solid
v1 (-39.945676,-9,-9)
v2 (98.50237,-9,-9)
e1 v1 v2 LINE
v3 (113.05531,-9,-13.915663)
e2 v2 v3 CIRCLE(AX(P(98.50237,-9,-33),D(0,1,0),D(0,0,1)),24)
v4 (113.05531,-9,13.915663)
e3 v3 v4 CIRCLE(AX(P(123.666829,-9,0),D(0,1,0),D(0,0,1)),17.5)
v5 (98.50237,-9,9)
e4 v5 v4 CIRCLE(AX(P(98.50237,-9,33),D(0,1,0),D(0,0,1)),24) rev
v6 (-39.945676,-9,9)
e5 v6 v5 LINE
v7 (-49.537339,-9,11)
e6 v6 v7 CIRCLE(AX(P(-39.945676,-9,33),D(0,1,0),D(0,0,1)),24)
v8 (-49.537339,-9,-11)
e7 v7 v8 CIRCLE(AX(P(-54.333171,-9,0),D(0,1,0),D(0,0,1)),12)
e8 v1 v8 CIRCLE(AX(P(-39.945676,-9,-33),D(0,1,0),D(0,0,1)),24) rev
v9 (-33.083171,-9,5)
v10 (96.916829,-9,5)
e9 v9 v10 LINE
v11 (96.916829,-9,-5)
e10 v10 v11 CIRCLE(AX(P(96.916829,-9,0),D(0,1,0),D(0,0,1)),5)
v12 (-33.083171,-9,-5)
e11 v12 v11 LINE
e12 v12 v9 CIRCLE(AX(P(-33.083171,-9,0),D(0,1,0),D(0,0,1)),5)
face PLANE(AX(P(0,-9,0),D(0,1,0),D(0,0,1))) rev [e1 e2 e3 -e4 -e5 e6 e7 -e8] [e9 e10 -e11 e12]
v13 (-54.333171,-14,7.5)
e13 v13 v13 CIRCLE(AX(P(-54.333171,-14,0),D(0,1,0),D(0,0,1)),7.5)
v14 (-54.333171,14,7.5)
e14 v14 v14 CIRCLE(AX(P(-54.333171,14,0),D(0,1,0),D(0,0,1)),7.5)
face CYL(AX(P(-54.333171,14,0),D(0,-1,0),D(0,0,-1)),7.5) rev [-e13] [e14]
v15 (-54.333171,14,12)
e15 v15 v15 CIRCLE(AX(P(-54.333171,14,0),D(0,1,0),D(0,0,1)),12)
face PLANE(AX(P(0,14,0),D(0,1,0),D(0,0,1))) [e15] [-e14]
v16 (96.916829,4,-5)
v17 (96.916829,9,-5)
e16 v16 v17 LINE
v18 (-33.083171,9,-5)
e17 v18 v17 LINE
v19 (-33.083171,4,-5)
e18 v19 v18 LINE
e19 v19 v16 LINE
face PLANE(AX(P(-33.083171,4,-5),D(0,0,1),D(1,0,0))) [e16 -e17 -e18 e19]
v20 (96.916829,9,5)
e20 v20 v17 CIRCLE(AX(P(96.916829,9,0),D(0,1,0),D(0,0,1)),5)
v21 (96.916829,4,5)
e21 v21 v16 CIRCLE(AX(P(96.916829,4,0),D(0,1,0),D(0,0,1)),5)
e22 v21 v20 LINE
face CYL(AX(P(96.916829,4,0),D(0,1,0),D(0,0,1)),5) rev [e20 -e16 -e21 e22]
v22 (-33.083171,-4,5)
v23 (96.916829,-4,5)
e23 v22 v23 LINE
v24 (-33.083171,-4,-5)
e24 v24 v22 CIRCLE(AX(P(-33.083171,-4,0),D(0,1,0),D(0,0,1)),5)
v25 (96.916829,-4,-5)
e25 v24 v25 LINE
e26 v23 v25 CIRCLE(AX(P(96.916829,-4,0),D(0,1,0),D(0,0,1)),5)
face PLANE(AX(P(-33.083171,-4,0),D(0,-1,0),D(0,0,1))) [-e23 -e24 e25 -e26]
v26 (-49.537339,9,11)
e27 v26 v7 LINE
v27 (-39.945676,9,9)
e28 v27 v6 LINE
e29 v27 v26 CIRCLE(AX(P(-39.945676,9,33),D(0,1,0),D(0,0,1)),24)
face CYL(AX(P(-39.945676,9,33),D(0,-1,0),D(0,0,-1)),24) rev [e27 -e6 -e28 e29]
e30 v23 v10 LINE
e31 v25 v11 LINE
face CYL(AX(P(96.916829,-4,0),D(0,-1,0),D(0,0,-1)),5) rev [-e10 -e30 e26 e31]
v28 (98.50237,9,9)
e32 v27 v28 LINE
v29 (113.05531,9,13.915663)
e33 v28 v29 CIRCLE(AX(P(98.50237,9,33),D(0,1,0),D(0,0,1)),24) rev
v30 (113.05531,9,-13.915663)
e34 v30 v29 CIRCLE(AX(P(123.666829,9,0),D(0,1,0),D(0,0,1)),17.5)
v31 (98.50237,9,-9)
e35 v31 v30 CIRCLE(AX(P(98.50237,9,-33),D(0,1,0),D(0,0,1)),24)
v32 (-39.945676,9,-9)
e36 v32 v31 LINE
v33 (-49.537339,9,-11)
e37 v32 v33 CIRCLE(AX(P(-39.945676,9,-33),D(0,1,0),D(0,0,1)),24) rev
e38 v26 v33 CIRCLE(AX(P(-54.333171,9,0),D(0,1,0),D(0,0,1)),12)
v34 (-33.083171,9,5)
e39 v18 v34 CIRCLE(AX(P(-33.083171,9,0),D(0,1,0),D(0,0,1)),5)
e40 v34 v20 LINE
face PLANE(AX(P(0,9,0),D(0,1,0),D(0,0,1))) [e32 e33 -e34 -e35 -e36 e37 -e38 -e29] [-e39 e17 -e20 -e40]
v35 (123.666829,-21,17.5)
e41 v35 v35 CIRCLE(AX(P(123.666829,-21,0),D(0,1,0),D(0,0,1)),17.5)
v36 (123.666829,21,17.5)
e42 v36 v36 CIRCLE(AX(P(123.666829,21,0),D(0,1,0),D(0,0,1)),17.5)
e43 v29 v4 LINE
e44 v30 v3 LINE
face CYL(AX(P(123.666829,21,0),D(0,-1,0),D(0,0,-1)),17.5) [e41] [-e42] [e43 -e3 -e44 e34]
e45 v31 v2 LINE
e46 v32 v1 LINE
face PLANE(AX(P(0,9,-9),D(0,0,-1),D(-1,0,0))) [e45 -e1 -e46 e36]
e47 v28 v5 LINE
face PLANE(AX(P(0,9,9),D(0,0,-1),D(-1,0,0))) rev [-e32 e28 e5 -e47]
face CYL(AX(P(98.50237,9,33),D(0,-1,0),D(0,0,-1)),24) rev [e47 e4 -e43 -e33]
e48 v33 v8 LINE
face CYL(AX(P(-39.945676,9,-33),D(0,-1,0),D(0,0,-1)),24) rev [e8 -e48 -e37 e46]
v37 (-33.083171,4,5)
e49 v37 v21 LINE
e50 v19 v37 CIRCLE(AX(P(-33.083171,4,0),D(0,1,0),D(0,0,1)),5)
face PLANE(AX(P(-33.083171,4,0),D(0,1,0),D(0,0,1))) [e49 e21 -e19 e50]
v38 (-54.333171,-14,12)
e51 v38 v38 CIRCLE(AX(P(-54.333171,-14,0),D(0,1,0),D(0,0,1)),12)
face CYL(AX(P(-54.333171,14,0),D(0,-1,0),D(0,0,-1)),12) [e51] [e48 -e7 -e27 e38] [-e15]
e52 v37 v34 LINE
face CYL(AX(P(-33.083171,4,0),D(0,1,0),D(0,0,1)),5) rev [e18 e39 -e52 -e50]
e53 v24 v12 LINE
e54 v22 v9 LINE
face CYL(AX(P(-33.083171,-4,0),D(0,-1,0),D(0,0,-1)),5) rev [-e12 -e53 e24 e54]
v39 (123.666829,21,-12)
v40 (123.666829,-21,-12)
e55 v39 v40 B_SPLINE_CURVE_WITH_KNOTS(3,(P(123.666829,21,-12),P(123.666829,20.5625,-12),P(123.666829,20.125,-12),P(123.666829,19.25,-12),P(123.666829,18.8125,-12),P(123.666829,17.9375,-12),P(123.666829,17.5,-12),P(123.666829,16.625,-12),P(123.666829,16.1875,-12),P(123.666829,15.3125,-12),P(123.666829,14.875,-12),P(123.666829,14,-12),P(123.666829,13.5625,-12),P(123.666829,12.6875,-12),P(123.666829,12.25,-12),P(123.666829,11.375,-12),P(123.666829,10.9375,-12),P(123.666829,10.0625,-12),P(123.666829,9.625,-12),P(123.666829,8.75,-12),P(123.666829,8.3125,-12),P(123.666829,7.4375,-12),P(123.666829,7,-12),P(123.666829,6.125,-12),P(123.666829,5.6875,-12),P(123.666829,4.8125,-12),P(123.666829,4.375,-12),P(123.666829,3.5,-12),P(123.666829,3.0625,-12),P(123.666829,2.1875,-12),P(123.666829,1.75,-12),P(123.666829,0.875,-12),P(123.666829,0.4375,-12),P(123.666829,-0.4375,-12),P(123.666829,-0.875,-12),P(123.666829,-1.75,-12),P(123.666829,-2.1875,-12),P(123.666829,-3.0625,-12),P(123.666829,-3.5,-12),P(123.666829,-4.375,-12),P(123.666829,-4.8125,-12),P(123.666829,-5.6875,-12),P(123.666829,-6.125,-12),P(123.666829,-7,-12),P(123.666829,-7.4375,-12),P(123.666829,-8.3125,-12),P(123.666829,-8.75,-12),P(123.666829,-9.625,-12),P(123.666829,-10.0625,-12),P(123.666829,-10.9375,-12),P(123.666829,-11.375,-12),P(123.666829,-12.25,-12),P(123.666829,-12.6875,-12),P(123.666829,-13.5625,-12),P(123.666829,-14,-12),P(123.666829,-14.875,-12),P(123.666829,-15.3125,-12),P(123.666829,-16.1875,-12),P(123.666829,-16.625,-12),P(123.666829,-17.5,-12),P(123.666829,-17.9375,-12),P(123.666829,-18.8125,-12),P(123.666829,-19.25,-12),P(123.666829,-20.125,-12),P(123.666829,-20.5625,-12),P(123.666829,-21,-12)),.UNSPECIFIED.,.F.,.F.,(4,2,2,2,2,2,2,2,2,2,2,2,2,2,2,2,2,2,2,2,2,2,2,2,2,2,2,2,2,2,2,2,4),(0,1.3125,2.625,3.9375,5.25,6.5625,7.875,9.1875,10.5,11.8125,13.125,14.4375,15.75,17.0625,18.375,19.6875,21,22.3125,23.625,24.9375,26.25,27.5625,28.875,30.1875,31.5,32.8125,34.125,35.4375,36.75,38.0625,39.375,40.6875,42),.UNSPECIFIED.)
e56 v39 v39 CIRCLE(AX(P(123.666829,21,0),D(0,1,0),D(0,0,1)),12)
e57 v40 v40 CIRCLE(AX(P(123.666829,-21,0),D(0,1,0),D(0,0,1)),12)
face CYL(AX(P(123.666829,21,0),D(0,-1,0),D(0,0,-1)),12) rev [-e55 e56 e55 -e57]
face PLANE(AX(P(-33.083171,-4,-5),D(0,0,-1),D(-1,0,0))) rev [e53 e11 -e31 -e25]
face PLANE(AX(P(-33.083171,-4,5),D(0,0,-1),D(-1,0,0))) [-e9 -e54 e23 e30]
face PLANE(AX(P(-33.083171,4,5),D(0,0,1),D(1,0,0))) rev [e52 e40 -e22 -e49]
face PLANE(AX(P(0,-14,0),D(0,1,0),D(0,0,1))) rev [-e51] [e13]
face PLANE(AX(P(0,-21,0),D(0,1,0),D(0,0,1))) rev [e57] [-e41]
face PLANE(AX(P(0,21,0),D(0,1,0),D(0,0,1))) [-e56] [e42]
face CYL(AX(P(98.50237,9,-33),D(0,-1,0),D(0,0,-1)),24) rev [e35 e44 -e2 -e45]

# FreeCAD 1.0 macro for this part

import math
import FreeCAD as App
import Part
import Sketcher
from FreeCAD import Vector

doc = App.newDocument("Part")
params = doc.addObject("Spreadsheet::Sheet", "Params")
for row, (alias, value) in enumerate([
    ("sketch1_diameter", "24 mm"),
    ("sketch1_diameter2", "15 mm"),
    ("pad1_length", "28 mm"),
    ("sketch2_diameter", "35 mm"),
    ("sketch2_diameter2", "24 mm"),
    ("pad2_length", "42 mm"),
    ("sketch3_radius", "24 mm"),
    ("sketch3_radius2", "12 mm"),
    ("sketch3_radius3", "17.5 mm"),
    ("pad3_length", "18 mm"),
    ("sketch4_radius", "5 mm"),
    ("sketch4_width", "130 mm"),
    ("pocket1_length", "5 mm"),
], start=1):
    params.set(f"A{row}", alias)
    params.set(f"B{row}", "=" + value)
    params.setAlias(f"B{row}", alias)

body = doc.addObject("PartDesign::Body", "Body")

# Sketch on XZ plane
sketch1 = body.newObject("Sketcher::SketchObject", "Sketch")
sketch1.AttachmentSupport = (doc.getObject("XZ_Plane"), [""])
sketch1.MapMode = "FlatFace"
sketch1.addGeometry([
    Part.Circle(Vector(-54, 0, 0), Vector(0, 0, 1), 12),
    Part.Circle(Vector(-54, 0, 0), Vector(0, 0, 1), 8),
], False)
sketch1.addConstraint([
    Sketcher.Constraint("Coincident", 1, 3, 0, 3),
    Sketcher.Constraint("PointOnObject", 0, 3, -1),
    Sketcher.Constraint("Diameter", 0, 24.0),
    Sketcher.Constraint("Diameter", 1, 15.0),
    Sketcher.Constraint("DistanceX", 0, 3, -1, 1, 54.333171),
])
sketch1.setExpression("Constraints[2]", "Params.sketch1_diameter")
sketch1.setExpression("Constraints[3]", "Params.sketch1_diameter2")
pad1 = body.newObject("PartDesign::Pad", "Pad")
pad1.Profile = sketch1
pad1.setExpression("Length", "Params.pad1_length")
pad1.Midplane = True
body2 = doc.addObject("PartDesign::Body", "Body001")

# Sketch on XZ plane
sketch2 = body2.newObject("Sketcher::SketchObject", "Sketch001")
sketch2.AttachmentSupport = (doc.getObject("XZ_Plane001"), [""])
sketch2.MapMode = "FlatFace"
sketch2.addGeometry([
    Part.Circle(Vector(124, 0, 0), Vector(0, 0, 1), 18),
    Part.Circle(Vector(124, 0, 0), Vector(0, 0, 1), 12),
], False)
sketch2.addConstraint([
    Sketcher.Constraint("Coincident", 1, 3, 0, 3),
    Sketcher.Constraint("PointOnObject", 0, 3, -1),
    Sketcher.Constraint("Diameter", 0, 35.0),
    Sketcher.Constraint("Diameter", 1, 24.0),
    Sketcher.Constraint("DistanceX", -1, 1, 0, 3, 123.666829),
])
sketch2.setExpression("Constraints[2]", "Params.sketch2_diameter")
sketch2.setExpression("Constraints[3]", "Params.sketch2_diameter2")
pad2 = body2.newObject("PartDesign::Pad", "Pad001")
pad2.Profile = sketch2
pad2.setExpression("Length", "Params.pad2_length")
pad2.Midplane = True
body.AllowCompound = True
doc.recompute()

boolean = body.newObject("PartDesign::Boolean", "Boolean")
boolean.Type = "Fuse"
boolean.addObjects([body2])

# Sketch on XZ plane
sketch3 = body.newObject("Sketcher::SketchObject", "Sketch002")
sketch3.AttachmentSupport = (doc.getObject("XZ_Plane"), [""])
sketch3.MapMode = "FlatFace"
sketch3.addGeometry([
    Part.LineSegment(Vector(99, -9, 0), Vector(-40, -9, 0)),  # 0
    Part.ArcOfCircle(Part.Circle(Vector(-40, -33, 0), Vector(0, 0, 1), 24), math.radians(90), math.radians(114)),  # 1
    Part.ArcOfCircle(Part.Circle(Vector(-54, 0, 0), Vector(0, 0, 1), 12), math.radians(-66), math.radians(66)),  # 2
    Part.ArcOfCircle(Part.Circle(Vector(-40, 33, 0), Vector(0, 0, 1), 24), math.radians(-114), math.radians(-90)),  # 3
    Part.LineSegment(Vector(-40, 9, 0), Vector(99, 9, 0)),  # 4
    Part.ArcOfCircle(Part.Circle(Vector(99, 33, 0), Vector(0, 0, 1), 24), math.radians(-90), math.radians(-53)),  # 5
    Part.ArcOfCircle(Part.Circle(Vector(124, 0, 0), Vector(0, 0, 1), 18), math.radians(127), math.radians(233)),  # 6
    Part.ArcOfCircle(Part.Circle(Vector(99, -33, 0), Vector(0, 0, 1), 24), math.radians(53), math.radians(90)),  # 7
], False)
sketch3.addConstraint([
    Sketcher.Constraint("Tangent", 0, 2, 1, 1),
    Sketcher.Constraint("Tangent", 1, 2, 2, 1),
    Sketcher.Constraint("Tangent", 2, 2, 3, 1),
    Sketcher.Constraint("Tangent", 3, 2, 4, 1),
    Sketcher.Constraint("Tangent", 4, 2, 5, 1),
    Sketcher.Constraint("Tangent", 5, 2, 6, 1),
    Sketcher.Constraint("Tangent", 6, 2, 7, 1),
    Sketcher.Constraint("Tangent", 7, 2, 0, 1),
    Sketcher.Constraint("Horizontal", 0),
    Sketcher.Constraint("Horizontal", 4),
    Sketcher.Constraint("Equal", 1, 3),
    Sketcher.Constraint("Equal", 3, 5),
    Sketcher.Constraint("Equal", 5, 7),
    Sketcher.Constraint("Symmetric", 1, 3, 3, 3, -1),
    Sketcher.Constraint("PointOnObject", 6, 3, -1),
    Sketcher.Constraint("Radius", 1, 24.0),
    Sketcher.Constraint("Radius", 2, 12.0),
    Sketcher.Constraint("Radius", 6, 17.5),
    Sketcher.Constraint("DistanceY", 1, 3, -1, 1, 33.0),
    Sketcher.Constraint("DistanceX", 2, 3, 6, 3, 178.0),
    Sketcher.Constraint("DistanceX", 2, 3, -1, 1, 54.333171),
])
sketch3.setExpression("Constraints[15]", "Params.sketch3_radius")
sketch3.setExpression("Constraints[16]", "Params.sketch3_radius2")
sketch3.setExpression("Constraints[17]", "Params.sketch3_radius3")
pad3 = body.newObject("PartDesign::Pad", "Pad002")
pad3.Profile = sketch3
pad3.setExpression("Length", "Params.pad3_length")
pad3.Midplane = True

# Sketch on XZ plane
sketch4 = body.newObject("Sketcher::SketchObject", "Sketch003")
sketch4.AttachmentSupport = (doc.getObject("XZ_Plane"), [""])
sketch4.MapMode = "FlatFace"
sketch4.AttachmentOffset = App.Placement(Vector(0, 0, -9), App.Rotation())
sketch4.addGeometry([
    Part.LineSegment(Vector(97, -5, 0), Vector(-33, -5, 0)),
    Part.ArcOfCircle(Part.Circle(Vector(-33, 0, 0), Vector(0, 0, 1), 5), math.radians(90), math.radians(270)),
    Part.LineSegment(Vector(-33, 5, 0), Vector(97, 5, 0)),
    Part.ArcOfCircle(Part.Circle(Vector(97, 0, 0), Vector(0, 0, 1), 5), math.radians(-90), math.radians(90)),
], False)
sketch4.addConstraint([
    Sketcher.Constraint("Tangent", 0, 2, 1, 2),
    Sketcher.Constraint("Tangent", 1, 1, 2, 1),
    Sketcher.Constraint("Tangent", 2, 2, 3, 2),
    Sketcher.Constraint("Tangent", 3, 1, 0, 1),
    Sketcher.Constraint("Horizontal", 0),
    Sketcher.Constraint("Horizontal", 2),
    Sketcher.Constraint("PointOnObject", 1, 3, -1),
    Sketcher.Constraint("Radius", 1, 5.0),
    Sketcher.Constraint("DistanceX", 0, 2, 0, 1, 130.0),
    Sketcher.Constraint("DistanceX", 1, 3, -1, 1, 33.083171),
])
sketch4.setExpression("Constraints[7]", "Params.sketch4_radius")
sketch4.setExpression("Constraints[8]", "Params.sketch4_width")
pocket1 = body.newObject("PartDesign::Pocket", "Pocket")
pocket1.Profile = sketch4
pocket1.setExpression("Length", "Params.pocket1_length")
pocket1.Reversed = True
doc.recompute()

mirrored = body.newObject("PartDesign::Mirrored", "Mirrored")
mirrored.Originals = [pocket1]
mirrored.MirrorPlane = (doc.getObject("XZ_Plane"), [""])
body.Tip = mirrored

doc.recompute()
